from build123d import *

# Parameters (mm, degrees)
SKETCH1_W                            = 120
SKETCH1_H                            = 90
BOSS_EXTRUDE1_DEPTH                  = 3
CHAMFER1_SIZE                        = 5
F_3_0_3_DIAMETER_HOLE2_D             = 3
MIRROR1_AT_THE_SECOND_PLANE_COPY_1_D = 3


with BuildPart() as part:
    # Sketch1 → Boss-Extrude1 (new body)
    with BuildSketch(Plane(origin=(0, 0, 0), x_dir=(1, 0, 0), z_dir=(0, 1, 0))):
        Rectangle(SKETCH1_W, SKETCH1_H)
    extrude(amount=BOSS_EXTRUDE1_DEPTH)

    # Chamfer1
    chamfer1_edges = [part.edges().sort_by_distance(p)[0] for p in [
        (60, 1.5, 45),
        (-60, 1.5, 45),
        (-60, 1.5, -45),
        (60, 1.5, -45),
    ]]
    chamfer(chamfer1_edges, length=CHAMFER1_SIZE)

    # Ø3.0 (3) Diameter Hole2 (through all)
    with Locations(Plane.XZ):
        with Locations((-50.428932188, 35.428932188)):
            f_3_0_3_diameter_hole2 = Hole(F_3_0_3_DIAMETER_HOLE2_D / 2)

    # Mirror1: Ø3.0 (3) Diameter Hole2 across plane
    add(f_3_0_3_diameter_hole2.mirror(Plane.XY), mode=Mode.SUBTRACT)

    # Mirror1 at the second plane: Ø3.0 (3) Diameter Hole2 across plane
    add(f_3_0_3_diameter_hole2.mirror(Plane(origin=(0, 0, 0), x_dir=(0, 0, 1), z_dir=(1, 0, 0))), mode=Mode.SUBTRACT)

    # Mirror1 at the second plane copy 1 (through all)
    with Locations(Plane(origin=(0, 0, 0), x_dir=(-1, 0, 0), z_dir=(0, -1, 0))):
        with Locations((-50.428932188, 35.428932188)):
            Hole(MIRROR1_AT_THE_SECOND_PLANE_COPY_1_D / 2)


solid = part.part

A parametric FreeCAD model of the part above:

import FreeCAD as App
import Part
import Sketcher


def edges_at(feature, points):
    """Names of the edges that pass closest to the given points."""
    edges = feature.Shape.Edges
    near = lambda p: min(range(len(edges)), key=lambda i: edges[i].distToShape(Part.Vertex(*p))[0])
    return sorted({f"Edge{near(p) + 1}" for p in points})


def add_polygon(sketch, points):
    """Adds a closed chain of lines whose ends are joined by coincident constraints."""
    first, n = sketch.GeometryCount, len(points)
    for a, b in zip(points, points[1:] + points[:1]):
        sketch.addGeometry(Part.LineSegment(App.Vector(*a, 0), App.Vector(*b, 0)), False)
    for i in range(n):
        sketch.addConstraint(Sketcher.Constraint("Coincident", first + i, 2, first + (i + 1) % n, 1))

doc = App.newDocument("Part")
body = doc.addObject("PartDesign::Body", "Body")

sketch1 = doc.addObject("Sketcher::SketchObject", "Sketch")
body.addObject(sketch1)
sketch1.AttachmentSupport = (doc.XZ_Plane, [""])
sketch1.MapMode = "FlatFace"
add_polygon(sketch1, [(-60, -45), (-60, 45), (60, 45), (60, -45)])
sketch1.addConstraint([
    Sketcher.Constraint("Vertical", 0),
    Sketcher.Constraint("Horizontal", 1),
    Sketcher.Constraint("Vertical", 2),
    Sketcher.Constraint("Horizontal", 3),
    Sketcher.Constraint("Symmetric", 0, 2, 2, 2, -1, 1),
    Sketcher.Constraint("DistanceX", 1, 1, 1, 2, 120.0),
    Sketcher.Constraint("DistanceY", 0, 1, 0, 2, 90.0),
])
pad1 = doc.addObject("PartDesign::Pad", "Pad")
body.addObject(pad1)
pad1.Profile = sketch1
pad1.Length = 3
pad1.Reversed = True
doc.recompute()

chamfer = doc.addObject("PartDesign::Chamfer", "Chamfer")
body.addObject(chamfer)
chamfer.Base = (pad1, edges_at(pad1, [
    (60, 1.5, 45),
    (-60, 1.5, 45),
    (-60, 1.5, -45),
    (60, 1.5, -45),
]))
chamfer.Size = 5

sketch2 = doc.addObject("Sketcher::SketchObject", "Sketch001")
body.addObject(sketch2)
sketch2.AttachmentSupport = (doc.XZ_Plane, [""])
sketch2.MapMode = "FlatFace"
sketch2.addGeometry(Part.Circle(App.Vector(-50.4, 35.4, 0), App.Vector(0, 0, 1), 1.5), False)
sketch2.addConstraint([
    Sketcher.Constraint("Diameter", 0, 3.0),
    Sketcher.Constraint("DistanceX", 0, 3, -1, 1, 50.428932),
    Sketcher.Constraint("DistanceY", -1, 1, 0, 3, 35.428932),
])
doc.recompute()
hole = doc.addObject("PartDesign::Hole", "Hole")
body.addObject(hole)
hole.Profile = sketch2
hole.ThreadType = "None"
hole.Diameter = 3
hole.DepthType = "ThroughAll"
doc.recompute()

mirrored = doc.addObject("PartDesign::Mirrored", "Mirrored")
body.addObject(mirrored)
mirrored.Originals = [hole]
mirrored.MirrorPlane = (doc.XY_Plane, [""])
body.Tip = mirrored
doc.recompute()

mirrored2 = doc.addObject("PartDesign::Mirrored", "Mirrored001")
body.addObject(mirrored2)
mirrored2.Originals = [hole]
mirrored2.MirrorPlane = (doc.YZ_Plane, [""])
body.Tip = mirrored2

sketch3 = doc.addObject("Sketcher::SketchObject", "Sketch002")
body.addObject(sketch3)
sketch3.AttachmentSupport = (doc.XZ_Plane, [""])
sketch3.MapMode = "FlatFace"
sketch3.addGeometry(Part.Circle(App.Vector(50.4, -35.4, 0), App.Vector(0, 0, 1), 1.5), False)
sketch3.addConstraint([
    Sketcher.Constraint("Diameter", 0, 3.0),
    Sketcher.Constraint("DistanceX", -1, 1, 0, 3, 50.428932),
    Sketcher.Constraint("DistanceY", 0, 3, -1, 1, 35.428932),
])
doc.recompute()
hole2 = doc.addObject("PartDesign::Hole", "Hole001")
body.addObject(hole2)
hole2.Profile = sketch3
hole2.ThreadType = "None"
hole2.Diameter = 3
hole2.DepthType = "ThroughAll"

doc.recompute()
